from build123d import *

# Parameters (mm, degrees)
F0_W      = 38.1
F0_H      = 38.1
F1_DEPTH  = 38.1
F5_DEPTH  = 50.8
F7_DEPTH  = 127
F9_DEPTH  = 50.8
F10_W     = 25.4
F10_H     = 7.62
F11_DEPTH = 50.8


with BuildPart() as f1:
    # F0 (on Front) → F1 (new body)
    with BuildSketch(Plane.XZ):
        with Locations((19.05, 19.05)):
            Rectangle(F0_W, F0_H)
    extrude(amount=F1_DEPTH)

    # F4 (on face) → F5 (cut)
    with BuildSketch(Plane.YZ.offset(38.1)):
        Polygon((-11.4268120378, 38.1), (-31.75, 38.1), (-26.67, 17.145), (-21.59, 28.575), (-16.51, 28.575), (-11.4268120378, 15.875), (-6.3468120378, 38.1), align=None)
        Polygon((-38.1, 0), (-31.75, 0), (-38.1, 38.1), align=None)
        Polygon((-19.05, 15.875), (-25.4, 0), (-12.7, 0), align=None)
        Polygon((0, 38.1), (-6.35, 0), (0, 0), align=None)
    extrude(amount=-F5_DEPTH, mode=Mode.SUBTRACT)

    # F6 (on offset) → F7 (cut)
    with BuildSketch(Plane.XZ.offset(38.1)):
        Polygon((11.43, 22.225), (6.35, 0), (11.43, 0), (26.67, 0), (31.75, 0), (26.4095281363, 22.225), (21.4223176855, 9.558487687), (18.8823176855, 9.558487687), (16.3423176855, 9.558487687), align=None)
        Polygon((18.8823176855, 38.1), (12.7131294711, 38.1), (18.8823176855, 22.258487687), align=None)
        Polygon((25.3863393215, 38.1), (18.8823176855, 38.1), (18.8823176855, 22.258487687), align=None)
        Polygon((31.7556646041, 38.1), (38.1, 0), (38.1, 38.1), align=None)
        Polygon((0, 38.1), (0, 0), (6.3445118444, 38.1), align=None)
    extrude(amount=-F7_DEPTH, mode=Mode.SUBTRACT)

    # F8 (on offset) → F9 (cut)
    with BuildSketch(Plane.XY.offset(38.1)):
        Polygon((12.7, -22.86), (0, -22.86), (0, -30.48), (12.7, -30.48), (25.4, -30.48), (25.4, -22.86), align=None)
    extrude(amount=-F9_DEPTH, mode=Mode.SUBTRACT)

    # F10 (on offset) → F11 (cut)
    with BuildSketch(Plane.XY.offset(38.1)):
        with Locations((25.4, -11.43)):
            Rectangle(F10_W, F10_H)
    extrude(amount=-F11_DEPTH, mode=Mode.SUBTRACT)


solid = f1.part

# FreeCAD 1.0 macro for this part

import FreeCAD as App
import Part
import Sketcher

V = App.Vector
Q = App.Units.Quantity

doc = App.newDocument("Part")
body = doc.addObject("PartDesign::Body", "Body")

# Sketch on XZ plane
sketch1 = body.newObject("Sketcher::SketchObject", "Sketch")
sketch1.AttachmentSupport = (doc.getObject("XZ_Plane"), [""])
sketch1.MapMode = "FlatFace"
sketch1.addGeometry([
    Part.LineSegment(V(0, 38, 0), V(0, 0, 0)),
    Part.LineSegment(V(0, 0, 0), V(38, 0, 0)),
    Part.LineSegment(V(38, 0, 0), V(38, 38, 0)),
    Part.LineSegment(V(38, 38, 0), V(0, 38, 0)),
], False)
sketch1.addConstraint([
    Sketcher.Constraint("Coincident", 0, 2, 1, 1),
    Sketcher.Constraint("Coincident", 1, 2, 2, 1),
    Sketcher.Constraint("Coincident", 2, 2, 3, 1),
    Sketcher.Constraint("Coincident", 3, 2, 0, 1),
    Sketcher.Constraint("Vertical", 0),
    Sketcher.Constraint("Horizontal", 1),
    Sketcher.Constraint("Vertical", 2),
    Sketcher.Constraint("Horizontal", 3),
    Sketcher.Constraint("Coincident", 0, 2, -1, 1),
    Sketcher.Constraint("Equal", 3, 0),
    Sketcher.Constraint("DistanceX", 1, 1, 1, 2, Q("1.5 in")),
])
pad1 = body.newObject("PartDesign::Pad", "Pad")
pad1.Profile = sketch1
pad1.Length = Q("1.5 in")

# Sketch on YZ plane
sketch2 = body.newObject("Sketcher::SketchObject", "Sketch001")
sketch2.AttachmentSupport = (doc.getObject("YZ_Plane"), [""])
sketch2.MapMode = "FlatFace"
sketch2.AttachmentOffset = App.Placement(V(0, 0, 1.5 * 25.4), App.Rotation())
sketch2.addGeometry([
    Part.LineSegment(V(-32, 38, 0), V(-27, 17, 0)),  # 0
    Part.LineSegment(V(-27, 17, 0), V(-22, 29, 0)),  # 1
    Part.LineSegment(V(-22, 29, 0), V(-17, 29, 0)),  # 2
    Part.LineSegment(V(-17, 29, 0), V(-11, 16, 0)),  # 3
    Part.LineSegment(V(-11, 16, 0), V(-6, 38, 0)),  # 4
    Part.LineSegment(V(-6, 38, 0), V(-32, 38, 0)),  # 5
    Part.LineSegment(V(-38, 0, 0), V(-32, 0, 0)),  # 6
    Part.LineSegment(V(-32, 0, 0), V(-38, 38, 0)),  # 7
    Part.LineSegment(V(-38, 38, 0), V(-38, 0, 0)),  # 8
    Part.LineSegment(V(-19, 16, 0), V(-25, 0, 0)),  # 9
    Part.LineSegment(V(-25, 0, 0), V(-13, 0, 0)),  # 10
    Part.LineSegment(V(-13, 0, 0), V(-19, 16, 0)),  # 11
    Part.LineSegment(V(0, 38, 0), V(-6, 0, 0)),  # 12
    Part.LineSegment(V(-6, 0, 0), V(0, 0, 0)),  # 13
    Part.LineSegment(V(0, 0, 0), V(0, 38, 0)),  # 14
], False)
sketch2.addConstraint([
    Sketcher.Constraint("Coincident", 0, 2, 1, 1),
    Sketcher.Constraint("Coincident", 1, 2, 2, 1),
    Sketcher.Constraint("Coincident", 2, 2, 3, 1),
    Sketcher.Constraint("Coincident", 3, 2, 4, 1),
    Sketcher.Constraint("Coincident", 4, 2, 5, 1),
    Sketcher.Constraint("Coincident", 5, 2, 0, 1),
    Sketcher.Constraint("Coincident", 6, 2, 7, 1),
    Sketcher.Constraint("Coincident", 7, 2, 8, 1),
    Sketcher.Constraint("Coincident", 8, 2, 6, 1),
    Sketcher.Constraint("Coincident", 9, 2, 10, 1),
    Sketcher.Constraint("Coincident", 10, 2, 11, 1),
    Sketcher.Constraint("Coincident", 11, 2, 9, 1),
    Sketcher.Constraint("Coincident", 12, 2, 13, 1),
    Sketcher.Constraint("Coincident", 13, 2, 14, 1),
    Sketcher.Constraint("Coincident", 14, 2, 12, 1),
    Sketcher.Constraint("Horizontal", 2),
    Sketcher.Constraint("Horizontal", 5),
    Sketcher.Constraint("Horizontal", 6),
    Sketcher.Constraint("Vertical", 8),
    Sketcher.Constraint("Horizontal", 10),
    Sketcher.Constraint("Horizontal", 13),
    Sketcher.Constraint("Vertical", 14),
    Sketcher.Constraint("Coincident", 13, 2, -1, 1),
    Sketcher.Constraint("PointOnObject", 6, 2, -1),
    Sketcher.Constraint("PointOnObject", 9, 2, -1),
    Sketcher.Constraint("Horizontal", 5, 2, 7, 2),
    Sketcher.Constraint("Horizontal", 3, 2, 11, 2),
    Sketcher.Constraint("Horizontal", 7, 2, 14, 2),
    Sketcher.Constraint("Vertical", 5, 2, 6, 2),
    Sketcher.Constraint("Equal", 6, 13),
    Sketcher.Constraint("Equal", 9, 11),
    Sketcher.Constraint("DistanceX", 2, 1, 2, 2, Q("0.2 in")),
    Sketcher.Constraint("DistanceX", 10, 1, 10, 2, Q("0.5 in")),
    Sketcher.Constraint("DistanceY", 8, 2, 8, 1, Q("1.5 in")),
    Sketcher.Constraint("DistanceX", 9, 2, -1, 1, Q("1 in")),
    Sketcher.Constraint("DistanceX", 8, 2, 10, 2, Q("1 in")),
    Sketcher.Constraint("DistanceX", 6, 2, 12, 2, Q("1 in")),
    Sketcher.Constraint("DistanceX", 0, 2, 1, 2, Q("0.2 in")),
    Sketcher.Constraint("DistanceY", 3, 2, 2, 2, Q("0.5 in")),
    Sketcher.Constraint("DistanceX", 3, 2, 4, 2, Q("0.2 in")),
    Sketcher.Constraint("DistanceX", 5, 2, 1, 2, Q("0.4 in")),
    Sketcher.Constraint("DistanceY", 0, 2, 1, 2, Q("0.45 in")),
    Sketcher.Constraint("DistanceY", -1, 1, 0, 2, Q("0.675 in")),
    Sketcher.Constraint("DistanceX", 5, 2, 5, 1, Q("25.403188 mm")),
])
pocket1 = body.newObject("PartDesign::Pocket", "Pocket")
pocket1.Profile = sketch2
pocket1.Length = Q("2 in")

# Sketch on XZ plane
sketch3 = body.newObject("Sketcher::SketchObject", "Sketch002")
sketch3.AttachmentSupport = (doc.getObject("XZ_Plane"), [""])
sketch3.MapMode = "FlatFace"
sketch3.AttachmentOffset = App.Placement(V(0, 0, 1.5 * 25.4), App.Rotation())
sketch3.addGeometry([
    Part.LineSegment(V(11, 22, 0), V(6, 0, 0)),  # 0
    Part.LineSegment(V(6, 0, 0), V(32, 0, 0)),  # 1
    Part.LineSegment(V(32, 0, 0), V(26, 22, 0)),  # 2
    Part.LineSegment(V(26, 22, 0), V(21, 10, 0)),  # 3
    Part.LineSegment(V(21, 10, 0), V(16, 10, 0)),  # 4
    Part.LineSegment(V(16, 10, 0), V(11, 22, 0)),  # 5
    Part.LineSegment(V(13, 38, 0), V(19, 22, 0)),  # 6
    Part.LineSegment(V(19, 22, 0), V(25, 38, 0)),  # 7
    Part.LineSegment(V(25, 38, 0), V(13, 38, 0)),  # 8
    Part.LineSegment(V(32, 38, 0), V(38, 0, 0)),  # 9
    Part.LineSegment(V(38, 0, 0), V(38, 38, 0)),  # 10
    Part.LineSegment(V(38, 38, 0), V(32, 38, 0)),  # 11
    Part.LineSegment(V(0, 38, 0), V(0, 0, 0)),  # 12
    Part.LineSegment(V(0, 0, 0), V(6, 38, 0)),  # 13
    Part.LineSegment(V(6, 38, 0), V(0, 38, 0)),  # 14
], False)
sketch3.addConstraint([
    Sketcher.Constraint("Coincident", 0, 2, 1, 1),
    Sketcher.Constraint("Coincident", 1, 2, 2, 1),
    Sketcher.Constraint("Coincident", 2, 2, 3, 1),
    Sketcher.Constraint("Coincident", 3, 2, 4, 1),
    Sketcher.Constraint("Coincident", 4, 2, 5, 1),
    Sketcher.Constraint("Coincident", 5, 2, 0, 1),
    Sketcher.Constraint("Coincident", 6, 2, 7, 1),
    Sketcher.Constraint("Coincident", 7, 2, 8, 1),
    Sketcher.Constraint("Coincident", 8, 2, 6, 1),
    Sketcher.Constraint("Coincident", 9, 2, 10, 1),
    Sketcher.Constraint("Coincident", 10, 2, 11, 1),
    Sketcher.Constraint("Coincident", 11, 2, 9, 1),
    Sketcher.Constraint("Coincident", 12, 2, 13, 1),
    Sketcher.Constraint("Coincident", 13, 2, 14, 1),
    Sketcher.Constraint("Coincident", 14, 2, 12, 1),
    Sketcher.Constraint("Horizontal", 1),
    Sketcher.Constraint("Horizontal", 4),
    Sketcher.Constraint("Horizontal", 8),
    Sketcher.Constraint("Vertical", 10),
    Sketcher.Constraint("Horizontal", 11),
    Sketcher.Constraint("Vertical", 12),
    Sketcher.Constraint("Horizontal", 14),
    Sketcher.Constraint("Coincident", 12, 2, -1, 1),
    Sketcher.Constraint("PointOnObject", 0, 2, -1),
    Sketcher.Constraint("PointOnObject", 9, 2, -1),
    Sketcher.Constraint("Horizontal", 2, 2, 5, 2),
    Sketcher.Constraint("Horizontal", 8, 2, 10, 2),
    Sketcher.Constraint("Horizontal", 11, 2, 13, 2),
    Sketcher.Constraint("DistanceX", 1, 1, 1, 2, Q("1 in")),
    Sketcher.Constraint("DistanceX", 4, 2, 4, 1, Q("0.2 in")),
    Sketcher.Constraint("DistanceY", 10, 1, 10, 2, Q("1.5 in")),
    Sketcher.Constraint("DistanceX", -1, 1, 9, 2, Q("1.5 in")),
    Sketcher.Constraint("DistanceX", 0, 2, 5, 2, Q("0.2 in")),
    Sketcher.Constraint("DistanceX", 4, 2, 6, 2, Q("0.1 in")),
    Sketcher.Constraint("DistanceY", 4, 2, 6, 2, Q("0.5 in")),
    Sketcher.Constraint("DistanceX", -1, 1, 0, 2, Q("0.25 in")),
    Sketcher.Constraint("DistanceY", -1, 1, 2, 2, Q("0.875 in")),
    Sketcher.Constraint("DistanceX", 8, 2, 8, 1, Q("12.67321 mm")),
    Sketcher.Constraint("DistanceX", 14, 2, 14, 1, Q("6.344512 mm")),
    Sketcher.Constraint("DistanceX", 8, 2, 2, 2, Q("13.696399 mm")),
    Sketcher.Constraint("Distance", 2, Q("22.85763 mm")),
    Sketcher.Constraint("Distance", 9, Q("38.624611 mm")),
    Sketcher.Constraint("DistanceX", 3, 2, 2, 2, Q("4.98721 mm")),
    Sketcher.Constraint("Distance", 3, Q("13.612964 mm")),
])
pocket2 = body.newObject("PartDesign::Pocket", "Pocket001")
pocket2.Profile = sketch3
pocket2.Length = Q("5 in")

# Sketch on XY plane
sketch4 = body.newObject("Sketcher::SketchObject", "Sketch003")
sketch4.AttachmentSupport = (doc.getObject("XY_Plane"), [""])
sketch4.MapMode = "FlatFace"
sketch4.AttachmentOffset = App.Placement(V(0, 0, 1.5 * 25.4), App.Rotation())
sketch4.addGeometry([
    Part.LineSegment(V(0, -23, 0), V(0, -30, 0)),
    Part.LineSegment(V(0, -30, 0), V(25, -30, 0)),
    Part.LineSegment(V(25, -30, 0), V(25, -23, 0)),
    Part.LineSegment(V(25, -23, 0), V(0, -23, 0)),
], False)
sketch4.addConstraint([
    Sketcher.Constraint("Coincident", 0, 2, 1, 1),
    Sketcher.Constraint("Coincident", 1, 2, 2, 1),
    Sketcher.Constraint("Coincident", 2, 2, 3, 1),
    Sketcher.Constraint("Coincident", 3, 2, 0, 1),
    Sketcher.Constraint("Vertical", 0),
    Sketcher.Constraint("Horizontal", 1),
    Sketcher.Constraint("Vertical", 2),
    Sketcher.Constraint("Horizontal", 3),
    Sketcher.Constraint("PointOnObject", 0, 2, -2),
    Sketcher.Constraint("DistanceX", 1, 1, 1, 2, Q("1 in")),
    Sketcher.Constraint("DistanceY", 0, 2, 0, 1, Q("0.3 in")),
    Sketcher.Constraint("DistanceY", 0, 2, -1, 1, Q("1.2 in")),
])
pocket3 = body.newObject("PartDesign::Pocket", "Pocket002")
pocket3.Profile = sketch4
pocket3.Length = Q("2 in")

# Sketch on XY plane
sketch5 = body.newObject("Sketcher::SketchObject", "Sketch004")
sketch5.AttachmentSupport = (doc.getObject("XY_Plane"), [""])
sketch5.MapMode = "FlatFace"
sketch5.AttachmentOffset = App.Placement(V(0, 0, 1.5 * 25.4), App.Rotation())
sketch5.addGeometry([
    Part.LineSegment(V(13, -8, 0), V(13, -15, 0)),
    Part.LineSegment(V(13, -15, 0), V(38, -15, 0)),
    Part.LineSegment(V(38, -15, 0), V(38, -8, 0)),
    Part.LineSegment(V(38, -8, 0), V(13, -8, 0)),
], False)
sketch5.addConstraint([
    Sketcher.Constraint("Coincident", 0, 2, 1, 1),
    Sketcher.Constraint("Coincident", 1, 2, 2, 1),
    Sketcher.Constraint("Coincident", 2, 2, 3, 1),
    Sketcher.Constraint("Coincident", 3, 2, 0, 1),
    Sketcher.Constraint("Vertical", 0),
    Sketcher.Constraint("Horizontal", 1),
    Sketcher.Constraint("Vertical", 2),
    Sketcher.Constraint("Horizontal", 3),
    Sketcher.Constraint("DistanceX", 1, 1, 1, 2, Q("1 in")),
    Sketcher.Constraint("DistanceY", 0, 2, 0, 1, Q("0.3 in")),
    Sketcher.Constraint("DistanceX", -1, 1, 0, 2, Q("0.5 in")),
    Sketcher.Constraint("DistanceY", 0, 2, -1, 1, Q("0.6 in")),
])
pocket4 = body.newObject("PartDesign::Pocket", "Pocket003")
pocket4.Profile = sketch5
pocket4.Length = Q("2 in")

doc.recompute()
